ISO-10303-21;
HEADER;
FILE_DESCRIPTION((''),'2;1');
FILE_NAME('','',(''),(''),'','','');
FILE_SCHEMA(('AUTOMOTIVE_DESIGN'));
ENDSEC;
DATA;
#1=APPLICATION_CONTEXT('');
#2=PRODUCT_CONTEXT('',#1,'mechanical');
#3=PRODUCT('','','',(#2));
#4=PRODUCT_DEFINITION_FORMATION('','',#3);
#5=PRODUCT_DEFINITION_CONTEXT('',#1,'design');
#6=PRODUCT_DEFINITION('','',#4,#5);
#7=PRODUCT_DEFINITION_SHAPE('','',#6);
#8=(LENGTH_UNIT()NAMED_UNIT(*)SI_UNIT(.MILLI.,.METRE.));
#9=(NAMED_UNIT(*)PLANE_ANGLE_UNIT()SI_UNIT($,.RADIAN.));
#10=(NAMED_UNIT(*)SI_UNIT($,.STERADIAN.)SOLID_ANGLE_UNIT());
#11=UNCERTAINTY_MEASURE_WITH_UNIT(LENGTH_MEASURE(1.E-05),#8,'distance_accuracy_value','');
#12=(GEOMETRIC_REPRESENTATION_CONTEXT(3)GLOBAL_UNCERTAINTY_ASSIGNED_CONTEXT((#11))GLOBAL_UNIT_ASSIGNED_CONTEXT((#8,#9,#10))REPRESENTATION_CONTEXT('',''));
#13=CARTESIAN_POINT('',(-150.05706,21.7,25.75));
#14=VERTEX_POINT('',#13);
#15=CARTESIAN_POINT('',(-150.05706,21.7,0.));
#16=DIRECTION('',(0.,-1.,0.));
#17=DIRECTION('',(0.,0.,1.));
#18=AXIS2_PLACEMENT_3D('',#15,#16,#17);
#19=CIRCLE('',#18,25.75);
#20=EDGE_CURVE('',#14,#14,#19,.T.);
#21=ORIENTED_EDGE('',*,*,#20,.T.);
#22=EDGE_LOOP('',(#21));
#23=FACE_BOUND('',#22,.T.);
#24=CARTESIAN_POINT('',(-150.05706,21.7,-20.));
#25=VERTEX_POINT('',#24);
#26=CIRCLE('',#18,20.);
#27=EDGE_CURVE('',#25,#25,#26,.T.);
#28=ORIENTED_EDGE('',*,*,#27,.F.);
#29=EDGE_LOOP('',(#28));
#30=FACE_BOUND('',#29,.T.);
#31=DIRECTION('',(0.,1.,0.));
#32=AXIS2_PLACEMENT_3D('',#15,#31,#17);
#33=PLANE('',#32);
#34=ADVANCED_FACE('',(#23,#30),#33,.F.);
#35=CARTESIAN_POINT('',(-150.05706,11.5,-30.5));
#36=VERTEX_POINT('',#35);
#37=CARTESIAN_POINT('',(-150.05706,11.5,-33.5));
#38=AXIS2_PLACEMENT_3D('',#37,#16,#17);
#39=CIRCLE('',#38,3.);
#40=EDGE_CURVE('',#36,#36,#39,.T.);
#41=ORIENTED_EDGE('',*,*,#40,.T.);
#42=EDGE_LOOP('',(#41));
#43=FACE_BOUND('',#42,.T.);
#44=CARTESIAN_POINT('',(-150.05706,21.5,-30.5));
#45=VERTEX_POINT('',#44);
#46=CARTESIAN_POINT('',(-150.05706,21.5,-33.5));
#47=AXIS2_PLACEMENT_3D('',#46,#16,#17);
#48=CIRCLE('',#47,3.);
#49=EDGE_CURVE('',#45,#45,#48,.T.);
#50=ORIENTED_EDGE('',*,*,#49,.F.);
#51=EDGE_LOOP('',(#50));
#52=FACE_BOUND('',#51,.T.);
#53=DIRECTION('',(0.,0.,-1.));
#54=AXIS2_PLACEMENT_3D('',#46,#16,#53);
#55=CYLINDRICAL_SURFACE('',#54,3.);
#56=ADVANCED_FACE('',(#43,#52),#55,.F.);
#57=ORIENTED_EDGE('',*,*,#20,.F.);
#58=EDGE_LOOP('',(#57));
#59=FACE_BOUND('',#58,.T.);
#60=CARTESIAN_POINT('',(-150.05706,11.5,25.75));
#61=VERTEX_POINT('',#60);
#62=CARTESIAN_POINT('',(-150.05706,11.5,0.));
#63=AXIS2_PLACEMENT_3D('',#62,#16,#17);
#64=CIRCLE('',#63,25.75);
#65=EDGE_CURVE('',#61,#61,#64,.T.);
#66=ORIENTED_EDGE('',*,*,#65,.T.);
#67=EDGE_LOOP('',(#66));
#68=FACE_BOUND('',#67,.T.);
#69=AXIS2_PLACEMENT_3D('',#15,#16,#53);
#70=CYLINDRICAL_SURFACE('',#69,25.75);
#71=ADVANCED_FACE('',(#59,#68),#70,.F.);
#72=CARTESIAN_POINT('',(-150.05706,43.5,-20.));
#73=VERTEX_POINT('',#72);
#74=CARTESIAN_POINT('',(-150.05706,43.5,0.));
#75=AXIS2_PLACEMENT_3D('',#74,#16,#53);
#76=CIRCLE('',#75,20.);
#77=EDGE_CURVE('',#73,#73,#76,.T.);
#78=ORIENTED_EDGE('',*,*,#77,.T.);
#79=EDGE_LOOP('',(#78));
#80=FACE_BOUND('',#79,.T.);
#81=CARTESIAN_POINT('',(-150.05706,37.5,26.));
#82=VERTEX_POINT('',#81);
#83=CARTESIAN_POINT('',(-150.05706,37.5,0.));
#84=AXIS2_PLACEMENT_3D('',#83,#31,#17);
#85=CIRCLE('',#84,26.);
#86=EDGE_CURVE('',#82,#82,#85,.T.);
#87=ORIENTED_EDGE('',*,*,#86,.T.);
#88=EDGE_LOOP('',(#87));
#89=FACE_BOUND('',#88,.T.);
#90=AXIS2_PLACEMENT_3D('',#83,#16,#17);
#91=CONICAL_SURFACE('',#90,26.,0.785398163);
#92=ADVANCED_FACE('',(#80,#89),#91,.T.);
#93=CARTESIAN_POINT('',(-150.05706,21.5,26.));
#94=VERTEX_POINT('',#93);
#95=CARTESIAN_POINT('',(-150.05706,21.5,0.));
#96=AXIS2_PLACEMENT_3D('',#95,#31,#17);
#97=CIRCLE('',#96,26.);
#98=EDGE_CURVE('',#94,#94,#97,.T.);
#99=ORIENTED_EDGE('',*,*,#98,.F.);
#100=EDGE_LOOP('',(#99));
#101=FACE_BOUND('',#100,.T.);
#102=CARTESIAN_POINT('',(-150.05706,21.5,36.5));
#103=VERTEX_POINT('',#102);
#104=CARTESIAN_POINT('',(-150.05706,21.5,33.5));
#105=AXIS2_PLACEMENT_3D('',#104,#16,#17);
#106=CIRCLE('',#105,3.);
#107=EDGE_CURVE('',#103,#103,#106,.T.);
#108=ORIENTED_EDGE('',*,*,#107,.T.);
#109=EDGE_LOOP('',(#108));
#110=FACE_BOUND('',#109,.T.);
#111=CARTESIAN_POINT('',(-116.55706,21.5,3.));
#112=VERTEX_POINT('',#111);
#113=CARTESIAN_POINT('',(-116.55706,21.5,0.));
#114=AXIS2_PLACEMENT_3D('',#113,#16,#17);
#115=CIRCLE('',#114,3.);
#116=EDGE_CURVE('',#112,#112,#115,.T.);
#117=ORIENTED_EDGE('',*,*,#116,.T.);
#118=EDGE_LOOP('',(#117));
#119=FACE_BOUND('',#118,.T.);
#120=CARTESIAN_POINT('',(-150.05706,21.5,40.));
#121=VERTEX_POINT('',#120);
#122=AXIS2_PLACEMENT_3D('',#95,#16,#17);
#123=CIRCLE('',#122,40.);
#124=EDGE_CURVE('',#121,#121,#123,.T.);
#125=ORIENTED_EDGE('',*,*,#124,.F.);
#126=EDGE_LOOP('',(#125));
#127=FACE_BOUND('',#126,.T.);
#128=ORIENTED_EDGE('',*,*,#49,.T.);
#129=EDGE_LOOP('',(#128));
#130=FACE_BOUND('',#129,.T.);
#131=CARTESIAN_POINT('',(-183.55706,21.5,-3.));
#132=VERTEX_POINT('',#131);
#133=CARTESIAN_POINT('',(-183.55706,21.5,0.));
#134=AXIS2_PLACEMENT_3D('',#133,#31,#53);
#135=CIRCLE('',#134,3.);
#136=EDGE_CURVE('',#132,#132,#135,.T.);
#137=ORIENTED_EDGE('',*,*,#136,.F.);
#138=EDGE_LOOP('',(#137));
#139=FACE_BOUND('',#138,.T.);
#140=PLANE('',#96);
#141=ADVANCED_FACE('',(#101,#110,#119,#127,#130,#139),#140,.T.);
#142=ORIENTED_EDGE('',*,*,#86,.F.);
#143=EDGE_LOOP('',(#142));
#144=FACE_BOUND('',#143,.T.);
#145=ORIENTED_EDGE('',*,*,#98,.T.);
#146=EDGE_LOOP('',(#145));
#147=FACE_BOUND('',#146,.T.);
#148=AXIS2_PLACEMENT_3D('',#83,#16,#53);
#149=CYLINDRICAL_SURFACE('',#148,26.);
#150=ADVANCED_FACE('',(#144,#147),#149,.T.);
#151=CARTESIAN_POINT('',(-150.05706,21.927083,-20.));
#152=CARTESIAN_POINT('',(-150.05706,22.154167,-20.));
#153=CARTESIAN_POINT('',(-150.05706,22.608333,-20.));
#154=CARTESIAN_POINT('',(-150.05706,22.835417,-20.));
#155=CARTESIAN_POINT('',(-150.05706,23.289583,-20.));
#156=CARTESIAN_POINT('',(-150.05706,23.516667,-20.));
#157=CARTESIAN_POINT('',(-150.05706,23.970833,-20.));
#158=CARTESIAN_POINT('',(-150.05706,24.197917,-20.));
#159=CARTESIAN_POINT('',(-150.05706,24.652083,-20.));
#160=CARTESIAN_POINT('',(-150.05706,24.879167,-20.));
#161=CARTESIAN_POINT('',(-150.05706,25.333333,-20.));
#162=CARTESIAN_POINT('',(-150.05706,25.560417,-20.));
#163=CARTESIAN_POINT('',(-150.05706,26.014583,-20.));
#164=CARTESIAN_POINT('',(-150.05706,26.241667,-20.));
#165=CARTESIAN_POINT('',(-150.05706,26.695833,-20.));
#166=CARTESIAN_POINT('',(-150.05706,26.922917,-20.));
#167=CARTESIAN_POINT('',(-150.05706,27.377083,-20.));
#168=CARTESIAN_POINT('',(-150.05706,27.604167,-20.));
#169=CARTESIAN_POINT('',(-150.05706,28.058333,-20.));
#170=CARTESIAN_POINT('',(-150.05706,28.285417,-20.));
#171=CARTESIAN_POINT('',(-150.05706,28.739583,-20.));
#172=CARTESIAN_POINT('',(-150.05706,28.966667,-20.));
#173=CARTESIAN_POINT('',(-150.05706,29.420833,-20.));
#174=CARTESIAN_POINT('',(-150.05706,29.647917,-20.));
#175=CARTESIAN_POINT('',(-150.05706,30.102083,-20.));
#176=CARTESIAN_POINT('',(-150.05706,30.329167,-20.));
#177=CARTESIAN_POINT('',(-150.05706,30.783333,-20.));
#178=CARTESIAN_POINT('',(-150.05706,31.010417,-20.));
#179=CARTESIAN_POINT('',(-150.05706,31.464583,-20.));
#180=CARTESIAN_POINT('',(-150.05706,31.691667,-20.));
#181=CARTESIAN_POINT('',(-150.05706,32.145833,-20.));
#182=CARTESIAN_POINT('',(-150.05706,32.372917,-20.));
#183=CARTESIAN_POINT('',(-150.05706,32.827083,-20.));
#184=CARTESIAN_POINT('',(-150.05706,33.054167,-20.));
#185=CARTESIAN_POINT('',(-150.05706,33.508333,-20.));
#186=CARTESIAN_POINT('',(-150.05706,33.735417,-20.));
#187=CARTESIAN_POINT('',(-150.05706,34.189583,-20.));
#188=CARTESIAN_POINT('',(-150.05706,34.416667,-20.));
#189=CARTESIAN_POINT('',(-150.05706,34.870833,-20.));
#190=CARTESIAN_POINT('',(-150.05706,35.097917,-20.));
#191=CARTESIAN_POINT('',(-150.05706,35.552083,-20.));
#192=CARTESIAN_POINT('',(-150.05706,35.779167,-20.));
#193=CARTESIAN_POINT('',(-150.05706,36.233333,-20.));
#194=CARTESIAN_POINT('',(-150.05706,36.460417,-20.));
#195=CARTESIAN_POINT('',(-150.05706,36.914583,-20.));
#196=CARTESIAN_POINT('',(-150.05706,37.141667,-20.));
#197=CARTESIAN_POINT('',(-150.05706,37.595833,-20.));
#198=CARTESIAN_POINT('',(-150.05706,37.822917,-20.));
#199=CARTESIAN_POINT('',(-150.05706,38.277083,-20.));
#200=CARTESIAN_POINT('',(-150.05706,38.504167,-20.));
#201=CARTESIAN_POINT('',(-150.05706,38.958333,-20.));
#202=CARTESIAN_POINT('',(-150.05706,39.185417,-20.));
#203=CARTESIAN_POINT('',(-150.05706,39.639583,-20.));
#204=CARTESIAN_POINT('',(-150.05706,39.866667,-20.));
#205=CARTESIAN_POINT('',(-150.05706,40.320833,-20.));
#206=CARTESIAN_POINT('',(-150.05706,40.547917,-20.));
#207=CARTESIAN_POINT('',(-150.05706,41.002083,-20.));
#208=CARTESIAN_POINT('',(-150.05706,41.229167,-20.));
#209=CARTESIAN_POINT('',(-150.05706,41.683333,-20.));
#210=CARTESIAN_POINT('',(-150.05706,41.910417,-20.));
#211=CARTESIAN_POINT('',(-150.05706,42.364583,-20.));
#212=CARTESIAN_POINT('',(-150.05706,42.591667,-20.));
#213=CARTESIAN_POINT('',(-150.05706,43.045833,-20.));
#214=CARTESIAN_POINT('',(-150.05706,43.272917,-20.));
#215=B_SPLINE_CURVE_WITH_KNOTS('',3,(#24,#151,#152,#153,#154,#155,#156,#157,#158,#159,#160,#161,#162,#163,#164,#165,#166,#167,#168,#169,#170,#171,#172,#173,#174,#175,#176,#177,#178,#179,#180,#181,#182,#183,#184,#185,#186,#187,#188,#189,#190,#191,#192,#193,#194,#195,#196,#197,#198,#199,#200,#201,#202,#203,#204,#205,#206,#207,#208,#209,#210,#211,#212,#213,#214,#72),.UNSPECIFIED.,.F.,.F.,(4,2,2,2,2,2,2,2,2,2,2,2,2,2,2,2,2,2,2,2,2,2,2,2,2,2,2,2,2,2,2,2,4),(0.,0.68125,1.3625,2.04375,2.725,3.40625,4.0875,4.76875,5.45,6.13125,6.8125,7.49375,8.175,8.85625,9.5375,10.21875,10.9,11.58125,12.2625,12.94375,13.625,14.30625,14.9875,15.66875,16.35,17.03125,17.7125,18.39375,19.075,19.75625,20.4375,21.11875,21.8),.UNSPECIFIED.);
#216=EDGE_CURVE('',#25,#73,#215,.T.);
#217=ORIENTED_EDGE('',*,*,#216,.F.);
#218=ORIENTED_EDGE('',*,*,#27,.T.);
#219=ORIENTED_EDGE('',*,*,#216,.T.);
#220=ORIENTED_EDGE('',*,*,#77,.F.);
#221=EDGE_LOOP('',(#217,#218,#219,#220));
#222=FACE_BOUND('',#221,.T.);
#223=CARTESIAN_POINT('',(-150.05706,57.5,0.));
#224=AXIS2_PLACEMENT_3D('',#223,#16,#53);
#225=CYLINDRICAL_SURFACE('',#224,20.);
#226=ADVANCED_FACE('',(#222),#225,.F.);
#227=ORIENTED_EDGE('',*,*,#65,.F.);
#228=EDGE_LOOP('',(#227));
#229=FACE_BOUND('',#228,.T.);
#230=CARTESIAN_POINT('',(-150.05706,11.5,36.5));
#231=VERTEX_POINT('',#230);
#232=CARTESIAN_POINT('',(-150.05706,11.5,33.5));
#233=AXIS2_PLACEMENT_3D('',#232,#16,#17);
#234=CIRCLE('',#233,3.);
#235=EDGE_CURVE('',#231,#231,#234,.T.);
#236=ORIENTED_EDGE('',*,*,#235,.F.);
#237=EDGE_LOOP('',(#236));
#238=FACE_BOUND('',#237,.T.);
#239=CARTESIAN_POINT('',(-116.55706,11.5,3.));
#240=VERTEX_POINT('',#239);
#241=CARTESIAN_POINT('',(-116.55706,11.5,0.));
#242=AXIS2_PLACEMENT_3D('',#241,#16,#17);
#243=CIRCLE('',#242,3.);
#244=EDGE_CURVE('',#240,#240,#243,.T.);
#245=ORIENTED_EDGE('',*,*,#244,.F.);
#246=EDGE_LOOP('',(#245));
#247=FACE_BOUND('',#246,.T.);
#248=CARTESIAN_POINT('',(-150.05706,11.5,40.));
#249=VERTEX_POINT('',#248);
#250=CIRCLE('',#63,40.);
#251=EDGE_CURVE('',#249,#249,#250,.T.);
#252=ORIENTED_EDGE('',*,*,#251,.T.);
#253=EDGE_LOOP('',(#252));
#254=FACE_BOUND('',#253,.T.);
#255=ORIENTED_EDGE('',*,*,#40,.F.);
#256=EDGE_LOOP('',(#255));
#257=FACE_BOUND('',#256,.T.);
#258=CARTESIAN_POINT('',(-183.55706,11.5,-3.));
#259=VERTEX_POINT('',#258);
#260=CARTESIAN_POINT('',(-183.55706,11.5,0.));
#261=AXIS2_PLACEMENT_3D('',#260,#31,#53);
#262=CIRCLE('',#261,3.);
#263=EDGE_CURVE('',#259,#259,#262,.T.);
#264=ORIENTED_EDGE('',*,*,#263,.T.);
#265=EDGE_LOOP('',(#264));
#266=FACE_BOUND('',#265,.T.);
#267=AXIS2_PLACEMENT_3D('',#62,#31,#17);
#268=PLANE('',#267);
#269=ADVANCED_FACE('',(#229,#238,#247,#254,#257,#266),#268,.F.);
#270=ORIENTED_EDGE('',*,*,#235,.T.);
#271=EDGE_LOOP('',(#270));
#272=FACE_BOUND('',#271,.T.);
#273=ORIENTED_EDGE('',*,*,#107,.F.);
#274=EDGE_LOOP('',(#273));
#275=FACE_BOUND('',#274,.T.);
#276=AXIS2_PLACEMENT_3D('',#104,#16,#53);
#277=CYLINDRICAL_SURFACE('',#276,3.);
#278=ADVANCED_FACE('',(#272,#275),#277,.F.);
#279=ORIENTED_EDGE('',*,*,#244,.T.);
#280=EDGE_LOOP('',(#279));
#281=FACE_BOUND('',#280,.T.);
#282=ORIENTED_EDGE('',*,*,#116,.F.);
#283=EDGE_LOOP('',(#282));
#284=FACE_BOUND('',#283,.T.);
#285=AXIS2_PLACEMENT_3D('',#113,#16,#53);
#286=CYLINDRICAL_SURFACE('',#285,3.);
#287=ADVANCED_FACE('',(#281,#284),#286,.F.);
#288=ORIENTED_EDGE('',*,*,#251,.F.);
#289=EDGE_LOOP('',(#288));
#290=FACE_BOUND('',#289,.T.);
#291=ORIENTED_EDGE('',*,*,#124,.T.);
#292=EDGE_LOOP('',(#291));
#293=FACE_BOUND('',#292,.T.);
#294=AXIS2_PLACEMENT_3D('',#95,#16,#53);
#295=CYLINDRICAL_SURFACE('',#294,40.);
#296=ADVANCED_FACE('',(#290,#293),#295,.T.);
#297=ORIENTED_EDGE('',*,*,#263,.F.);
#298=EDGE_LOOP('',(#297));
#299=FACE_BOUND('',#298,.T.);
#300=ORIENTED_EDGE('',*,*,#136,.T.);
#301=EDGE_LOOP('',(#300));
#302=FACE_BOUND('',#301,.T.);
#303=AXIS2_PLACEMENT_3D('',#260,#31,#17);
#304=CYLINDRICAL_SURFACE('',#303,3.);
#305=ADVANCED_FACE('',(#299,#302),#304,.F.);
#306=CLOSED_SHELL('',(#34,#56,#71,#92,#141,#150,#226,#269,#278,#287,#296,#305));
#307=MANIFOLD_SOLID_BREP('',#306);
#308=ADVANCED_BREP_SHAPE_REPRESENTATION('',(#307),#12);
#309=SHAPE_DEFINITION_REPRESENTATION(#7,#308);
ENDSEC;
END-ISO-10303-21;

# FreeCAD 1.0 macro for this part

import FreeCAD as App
import Part
import Sketcher
from FreeCAD import Vector

doc = App.newDocument("Part")
body = doc.addObject("PartDesign::Body", "Body")

sketch1 = body.newObject("Sketcher::SketchObject", "Sketch")
sketch1.AttachmentSupport = (doc.getObject("XZ_Plane"), [""])
sketch1.MapMode = "FlatFace"
sketch1.AttachmentOffset = App.Placement(Vector(0, 0, -11.5), App.Rotation())
sketch1.addGeometry(Part.Circle(Vector(-150.05706, 0, 0), Vector(0, 0, 1), 40), False)
sketch1.addConstraint([
    Sketcher.Constraint("PointOnObject", 0, 3, -1),
    Sketcher.Constraint("Diameter", 0, 80.0),
    Sketcher.Constraint("DistanceX", 0, 3, -1, 1, 150.05706),
])
pad1 = body.newObject("PartDesign::Pad", "Pad")
pad1.Profile = sketch1
pad1.Length = 10
pad1.Reversed = True

sketch2 = body.newObject("Sketcher::SketchObject", "Sketch001")
sketch2.AttachmentSupport = (doc.getObject("XZ_Plane"), [""])
sketch2.MapMode = "FlatFace"
sketch2.AttachmentOffset = App.Placement(Vector(0, 0, -11.5), App.Rotation())
sketch2.addGeometry(Part.Circle(Vector(-150.05706, -33.5, 0), Vector(0, 0, 1), 3), False)
sketch2.addConstraint([
    Sketcher.Constraint("Diameter", 0, 6.0),
    Sketcher.Constraint("DistanceY", 0, 3, -1, 1, 33.5),
    Sketcher.Constraint("DistanceX", 0, 3, -1, 1, 150.05706),
])
pocket1 = body.newObject("PartDesign::Pocket", "Pocket")
pocket1.Profile = sketch2
pocket1.Type = "ThroughAll"

sketch3 = body.newObject("Sketcher::SketchObject", "Sketch002")
sketch3.AttachmentSupport = (doc.getObject("XZ_Plane"), [""])
sketch3.MapMode = "FlatFace"
sketch3.AttachmentOffset = App.Placement(Vector(0, 0, -11.5), App.Rotation())
sketch3.addGeometry(Part.Circle(Vector(-116.55706, 0, 0), Vector(0, 0, 1), 3), False)
sketch3.addConstraint([
    Sketcher.Constraint("PointOnObject", 0, 3, -1),
    Sketcher.Constraint("Diameter", 0, 6.0),
    Sketcher.Constraint("DistanceX", 0, 3, -1, 1, 116.55706),
])
pocket2 = body.newObject("PartDesign::Pocket", "Pocket001")
pocket2.Profile = sketch3
pocket2.Type = "ThroughAll"

sketch4 = body.newObject("Sketcher::SketchObject", "Sketch003")
sketch4.AttachmentSupport = (doc.getObject("XZ_Plane"), [""])
sketch4.MapMode = "FlatFace"
sketch4.AttachmentOffset = App.Placement(Vector(0, 0, -11.5), App.Rotation())
sketch4.addGeometry(Part.Circle(Vector(-150.05706, 33.5, 0), Vector(0, 0, 1), 3), False)
sketch4.addConstraint([
    Sketcher.Constraint("Diameter", 0, 6.0),
    Sketcher.Constraint("DistanceY", -1, 1, 0, 3, 33.5),
    Sketcher.Constraint("DistanceX", 0, 3, -1, 1, 150.05706),
])
pocket3 = body.newObject("PartDesign::Pocket", "Pocket002")
pocket3.Profile = sketch4
pocket3.Type = "ThroughAll"

sketch5 = body.newObject("Sketcher::SketchObject", "Sketch004")
sketch5.AttachmentSupport = (doc.getObject("XZ_Plane"), [""])
sketch5.MapMode = "FlatFace"
sketch5.AttachmentOffset = App.Placement(Vector(0, 0, -21.5), App.Rotation())
sketch5.addGeometry(Part.Circle(Vector(-183.55706, 0, 0), Vector(0, 0, 1), 3), False)
sketch5.addConstraint([
    Sketcher.Constraint("PointOnObject", 0, 3, -1),
    Sketcher.Constraint("Diameter", 0, 6.0),
    Sketcher.Constraint("DistanceX", 0, 3, -1, 1, 183.55706),
])
pocket4 = body.newObject("PartDesign::Pocket", "Pocket003")
pocket4.Profile = sketch5
pocket4.Type = "ThroughAll"
pocket4.Reversed = True

sketch6 = body.newObject("Sketcher::SketchObject", "Sketch005")
sketch6.AttachmentSupport = (doc.getObject("XZ_Plane"), [""])
sketch6.MapMode = "FlatFace"
sketch6.AttachmentOffset = App.Placement(Vector(0, 0, -21.5), App.Rotation())
sketch6.addGeometry(Part.Circle(Vector(-150.05706, 0, 0), Vector(0, 0, 1), 26), False)
sketch6.addConstraint([
    Sketcher.Constraint("PointOnObject", 0, 3, -1),
    Sketcher.Constraint("Diameter", 0, 52.0),
    Sketcher.Constraint("DistanceX", 0, 3, -1, 1, 150.05706),
])
pad2 = body.newObject("PartDesign::Pad", "Pad001")
pad2.Profile = sketch6
pad2.Length = 16
pad2.Reversed = True

sketch7 = body.newObject("Sketcher::SketchObject", "Sketch006")
sketch7.AttachmentSupport = (doc.getObject("XZ_Plane"), [""])
sketch7.MapMode = "FlatFace"
sketch7.AttachmentOffset = App.Placement(Vector(0, 0, -37.5), App.Rotation())
sketch7.addGeometry(Part.Circle(Vector(-150.05706, 0, 0), Vector(0, 0, 1), 26), False)
sketch7.addConstraint([
    Sketcher.Constraint("PointOnObject", 0, 3, -1),
    Sketcher.Constraint("Diameter", 0, 52.0),
    Sketcher.Constraint("DistanceX", 0, 3, -1, 1, 150.05706),
])
pad3 = body.newObject("PartDesign::Pad", "Pad002")
pad3.Profile = sketch7
pad3.Length = 6
pad3.Reversed = True
pad3.TaperAngle = -45

sketch8 = body.newObject("Sketcher::SketchObject", "Sketch007")
sketch8.AttachmentSupport = (doc.getObject("XZ_Plane"), [""])
sketch8.MapMode = "FlatFace"
sketch8.AttachmentOffset = App.Placement(Vector(0, 0, -43.5), App.Rotation())
sketch8.addGeometry(Part.Circle(Vector(-150.05706, 0, 0), Vector(0, 0, 1), 20), False)
sketch8.addConstraint([
    Sketcher.Constraint("PointOnObject", 0, 3, -1),
    Sketcher.Constraint("Diameter", 0, 40.0),
    Sketcher.Constraint("DistanceX", 0, 3, -1, 1, 150.05706),
])
pad4 = body.newObject("PartDesign::Pad", "Pad003")
pad4.Profile = sketch8
pad4.Length = 14
pad4.Reversed = True

sketch9 = body.newObject("Sketcher::SketchObject", "Sketch008")
sketch9.AttachmentSupport = (doc.getObject("XZ_Plane"), [""])
sketch9.MapMode = "FlatFace"
sketch9.AttachmentOffset = App.Placement(Vector(0, 0, -11.5), App.Rotation())
sketch9.addGeometry(Part.Circle(Vector(-150.05706, 0, 0), Vector(0, 0, 1), 25.75), False)
sketch9.addConstraint([
    Sketcher.Constraint("PointOnObject", 0, 3, -1),
    Sketcher.Constraint("Diameter", 0, 51.5),
    Sketcher.Constraint("DistanceX", 0, 3, -1, 1, 150.05706),
])
pocket5 = body.newObject("PartDesign::Pocket", "Pocket004")
pocket5.Profile = sketch9
pocket5.Length = 10.2

sketch10 = body.newObject("Sketcher::SketchObject", "Sketch009")
sketch10.AttachmentSupport = (doc.getObject("XZ_Plane"), [""])
sketch10.MapMode = "FlatFace"
sketch10.AttachmentOffset = App.Placement(Vector(0, 0, -21.7), App.Rotation())
sketch10.addGeometry(Part.Circle(Vector(-150.05706, 0, 0), Vector(0, 0, 1), 20), False)
sketch10.addConstraint([
    Sketcher.Constraint("PointOnObject", 0, 3, -1),
    Sketcher.Constraint("Diameter", 0, 40.0),
    Sketcher.Constraint("DistanceX", 0, 3, -1, 1, 150.05706),
])
pocket6 = body.newObject("PartDesign::Pocket", "Pocket005")
pocket6.Profile = sketch10
pocket6.Type = "ThroughAll"

doc.recompute()
